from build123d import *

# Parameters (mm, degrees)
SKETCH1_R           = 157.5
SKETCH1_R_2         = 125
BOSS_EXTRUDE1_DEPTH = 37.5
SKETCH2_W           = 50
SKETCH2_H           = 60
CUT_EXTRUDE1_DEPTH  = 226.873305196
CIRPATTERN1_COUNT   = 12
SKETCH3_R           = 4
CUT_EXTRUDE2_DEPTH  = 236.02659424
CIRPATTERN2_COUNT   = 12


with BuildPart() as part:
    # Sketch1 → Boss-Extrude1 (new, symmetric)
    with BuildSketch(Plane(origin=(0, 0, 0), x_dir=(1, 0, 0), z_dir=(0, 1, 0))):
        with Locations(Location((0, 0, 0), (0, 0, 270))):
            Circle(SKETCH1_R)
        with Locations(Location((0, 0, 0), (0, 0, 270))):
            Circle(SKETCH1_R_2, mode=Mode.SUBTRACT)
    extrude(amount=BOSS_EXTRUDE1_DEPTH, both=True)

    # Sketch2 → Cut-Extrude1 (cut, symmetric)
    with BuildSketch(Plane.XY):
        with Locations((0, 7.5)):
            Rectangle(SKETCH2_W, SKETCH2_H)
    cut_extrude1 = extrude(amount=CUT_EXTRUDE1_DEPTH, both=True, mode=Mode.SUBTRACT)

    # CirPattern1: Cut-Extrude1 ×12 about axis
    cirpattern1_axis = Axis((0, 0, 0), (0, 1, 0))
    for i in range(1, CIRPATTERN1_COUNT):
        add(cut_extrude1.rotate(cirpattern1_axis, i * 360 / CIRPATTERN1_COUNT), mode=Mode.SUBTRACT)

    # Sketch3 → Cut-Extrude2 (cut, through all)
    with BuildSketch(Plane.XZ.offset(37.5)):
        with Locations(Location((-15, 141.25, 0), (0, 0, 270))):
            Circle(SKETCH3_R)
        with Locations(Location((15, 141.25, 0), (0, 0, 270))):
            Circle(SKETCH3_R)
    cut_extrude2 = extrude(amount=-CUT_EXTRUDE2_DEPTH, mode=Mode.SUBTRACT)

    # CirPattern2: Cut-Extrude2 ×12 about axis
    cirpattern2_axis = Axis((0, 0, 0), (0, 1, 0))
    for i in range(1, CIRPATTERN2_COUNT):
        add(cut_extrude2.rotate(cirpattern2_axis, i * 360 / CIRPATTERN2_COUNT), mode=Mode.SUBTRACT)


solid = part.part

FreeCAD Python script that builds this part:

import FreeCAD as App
import Part
import Sketcher
Q = App.Units.Quantity

doc = App.newDocument("Part")
body = doc.addObject("PartDesign::Body", "Body")

sketch1 = doc.addObject("Sketcher::SketchObject", "Sketch")
body.addObject(sketch1)
sketch1.AttachmentSupport = (doc.XZ_Plane, [""])
sketch1.MapMode = "FlatFace"
sketch1.addGeometry(Part.Circle(App.Vector(0, 0, 0), App.Vector(0, 0, 1), 157.5), False)
sketch1.addGeometry(Part.Circle(App.Vector(0, 0, 0), App.Vector(0, 0, 1), 125), False)
sketch1.addConstraint(Sketcher.Constraint("Coincident", 0, 3, -1, 1))
sketch1.addConstraint(Sketcher.Constraint("Coincident", 1, 3, -1, 1))
sketch1.addConstraint(Sketcher.Constraint("Diameter", 0, Q("315 mm")))
sketch1.addConstraint(Sketcher.Constraint("Diameter", 1, Q("250 mm")))
pad1 = doc.addObject("PartDesign::Pad", "Pad")
body.addObject(pad1)
pad1.Profile = sketch1
pad1.Length = 75
pad1.Midplane = True

sketch2 = doc.addObject("Sketcher::SketchObject", "Sketch001")
body.addObject(sketch2)
sketch2.AttachmentSupport = (doc.XY_Plane, [""])
sketch2.MapMode = "FlatFace"
sketch2.addGeometry(Part.LineSegment(App.Vector(-25, 37.5, 0), App.Vector(-25, -22.5, 0)), False)
sketch2.addGeometry(Part.LineSegment(App.Vector(-25, -22.5, 0), App.Vector(25, -22.5, 0)), False)
sketch2.addGeometry(Part.LineSegment(App.Vector(25, -22.5, 0), App.Vector(25, 37.5, 0)), False)
sketch2.addGeometry(Part.LineSegment(App.Vector(25, 37.5, 0), App.Vector(-25, 37.5, 0)), False)
sketch2.addConstraint(Sketcher.Constraint("Coincident", 0, 2, 1, 1))
sketch2.addConstraint(Sketcher.Constraint("Coincident", 1, 2, 2, 1))
sketch2.addConstraint(Sketcher.Constraint("Coincident", 2, 2, 3, 1))
sketch2.addConstraint(Sketcher.Constraint("Coincident", 3, 2, 0, 1))
sketch2.addConstraint(Sketcher.Constraint("Vertical", 0))
sketch2.addConstraint(Sketcher.Constraint("Horizontal", 1))
sketch2.addConstraint(Sketcher.Constraint("Vertical", 2))
sketch2.addConstraint(Sketcher.Constraint("Horizontal", 3))
sketch2.addConstraint(Sketcher.Constraint("DistanceX", 1, 1, 1, 2, Q("50 mm")))
sketch2.addConstraint(Sketcher.Constraint("DistanceY", 0, 2, 0, 1, Q("60 mm")))
sketch2.addConstraint(Sketcher.Constraint("DistanceX", 0, 2, -1, 1, Q("25 mm")))
sketch2.addConstraint(Sketcher.Constraint("DistanceY", 0, 2, -1, 1, Q("22.5 mm")))
pocket1 = doc.addObject("PartDesign::Pocket", "Pocket")
body.addObject(pocket1)
pocket1.Profile = sketch2
pocket1.Length = 453.74661
pocket1.Midplane = True
doc.recompute()

polarpattern = doc.addObject("PartDesign::PolarPattern", "PolarPattern")
body.addObject(polarpattern)
polarpattern.Originals = [pocket1]
polarpattern.Axis = (doc.Y_Axis, [""])
polarpattern.Angle = 360
polarpattern.Occurrences = 12
body.Tip = polarpattern

sketch3 = doc.addObject("Sketcher::SketchObject", "Sketch002")
body.addObject(sketch3)
sketch3.AttachmentSupport = (doc.XZ_Plane, [""])
sketch3.MapMode = "FlatFace"
sketch3.AttachmentOffset = App.Placement(App.Vector(0, 0, 37.5), App.Rotation())
sketch3.addGeometry(Part.Circle(App.Vector(-15, 141.25, 0), App.Vector(0, 0, 1), 4), False)
sketch3.addGeometry(Part.Circle(App.Vector(15, 141.25, 0), App.Vector(0, 0, 1), 4), False)
sketch3.addConstraint(Sketcher.Constraint("Equal", 0, 1))
sketch3.addConstraint(Sketcher.Constraint("Symmetric", 0, 3, 1, 3, -2))
sketch3.addConstraint(Sketcher.Constraint("Diameter", 0, Q("8 mm")))
sketch3.addConstraint(Sketcher.Constraint("DistanceX", 0, 3, -1, 1, Q("15 mm")))
sketch3.addConstraint(Sketcher.Constraint("DistanceY", -1, 1, 0, 3, Q("141.25 mm")))
pocket2 = doc.addObject("PartDesign::Pocket", "Pocket001")
body.addObject(pocket2)
pocket2.Profile = sketch3
pocket2.Type = "ThroughAll"
doc.recompute()

polarpattern2 = doc.addObject("PartDesign::PolarPattern", "PolarPattern001")
body.addObject(polarpattern2)
polarpattern2.Originals = [pocket2]
polarpattern2.Axis = (doc.Y_Axis, [""])
polarpattern2.Angle = 360
polarpattern2.Occurrences = 12
body.Tip = polarpattern2

doc.recompute()
